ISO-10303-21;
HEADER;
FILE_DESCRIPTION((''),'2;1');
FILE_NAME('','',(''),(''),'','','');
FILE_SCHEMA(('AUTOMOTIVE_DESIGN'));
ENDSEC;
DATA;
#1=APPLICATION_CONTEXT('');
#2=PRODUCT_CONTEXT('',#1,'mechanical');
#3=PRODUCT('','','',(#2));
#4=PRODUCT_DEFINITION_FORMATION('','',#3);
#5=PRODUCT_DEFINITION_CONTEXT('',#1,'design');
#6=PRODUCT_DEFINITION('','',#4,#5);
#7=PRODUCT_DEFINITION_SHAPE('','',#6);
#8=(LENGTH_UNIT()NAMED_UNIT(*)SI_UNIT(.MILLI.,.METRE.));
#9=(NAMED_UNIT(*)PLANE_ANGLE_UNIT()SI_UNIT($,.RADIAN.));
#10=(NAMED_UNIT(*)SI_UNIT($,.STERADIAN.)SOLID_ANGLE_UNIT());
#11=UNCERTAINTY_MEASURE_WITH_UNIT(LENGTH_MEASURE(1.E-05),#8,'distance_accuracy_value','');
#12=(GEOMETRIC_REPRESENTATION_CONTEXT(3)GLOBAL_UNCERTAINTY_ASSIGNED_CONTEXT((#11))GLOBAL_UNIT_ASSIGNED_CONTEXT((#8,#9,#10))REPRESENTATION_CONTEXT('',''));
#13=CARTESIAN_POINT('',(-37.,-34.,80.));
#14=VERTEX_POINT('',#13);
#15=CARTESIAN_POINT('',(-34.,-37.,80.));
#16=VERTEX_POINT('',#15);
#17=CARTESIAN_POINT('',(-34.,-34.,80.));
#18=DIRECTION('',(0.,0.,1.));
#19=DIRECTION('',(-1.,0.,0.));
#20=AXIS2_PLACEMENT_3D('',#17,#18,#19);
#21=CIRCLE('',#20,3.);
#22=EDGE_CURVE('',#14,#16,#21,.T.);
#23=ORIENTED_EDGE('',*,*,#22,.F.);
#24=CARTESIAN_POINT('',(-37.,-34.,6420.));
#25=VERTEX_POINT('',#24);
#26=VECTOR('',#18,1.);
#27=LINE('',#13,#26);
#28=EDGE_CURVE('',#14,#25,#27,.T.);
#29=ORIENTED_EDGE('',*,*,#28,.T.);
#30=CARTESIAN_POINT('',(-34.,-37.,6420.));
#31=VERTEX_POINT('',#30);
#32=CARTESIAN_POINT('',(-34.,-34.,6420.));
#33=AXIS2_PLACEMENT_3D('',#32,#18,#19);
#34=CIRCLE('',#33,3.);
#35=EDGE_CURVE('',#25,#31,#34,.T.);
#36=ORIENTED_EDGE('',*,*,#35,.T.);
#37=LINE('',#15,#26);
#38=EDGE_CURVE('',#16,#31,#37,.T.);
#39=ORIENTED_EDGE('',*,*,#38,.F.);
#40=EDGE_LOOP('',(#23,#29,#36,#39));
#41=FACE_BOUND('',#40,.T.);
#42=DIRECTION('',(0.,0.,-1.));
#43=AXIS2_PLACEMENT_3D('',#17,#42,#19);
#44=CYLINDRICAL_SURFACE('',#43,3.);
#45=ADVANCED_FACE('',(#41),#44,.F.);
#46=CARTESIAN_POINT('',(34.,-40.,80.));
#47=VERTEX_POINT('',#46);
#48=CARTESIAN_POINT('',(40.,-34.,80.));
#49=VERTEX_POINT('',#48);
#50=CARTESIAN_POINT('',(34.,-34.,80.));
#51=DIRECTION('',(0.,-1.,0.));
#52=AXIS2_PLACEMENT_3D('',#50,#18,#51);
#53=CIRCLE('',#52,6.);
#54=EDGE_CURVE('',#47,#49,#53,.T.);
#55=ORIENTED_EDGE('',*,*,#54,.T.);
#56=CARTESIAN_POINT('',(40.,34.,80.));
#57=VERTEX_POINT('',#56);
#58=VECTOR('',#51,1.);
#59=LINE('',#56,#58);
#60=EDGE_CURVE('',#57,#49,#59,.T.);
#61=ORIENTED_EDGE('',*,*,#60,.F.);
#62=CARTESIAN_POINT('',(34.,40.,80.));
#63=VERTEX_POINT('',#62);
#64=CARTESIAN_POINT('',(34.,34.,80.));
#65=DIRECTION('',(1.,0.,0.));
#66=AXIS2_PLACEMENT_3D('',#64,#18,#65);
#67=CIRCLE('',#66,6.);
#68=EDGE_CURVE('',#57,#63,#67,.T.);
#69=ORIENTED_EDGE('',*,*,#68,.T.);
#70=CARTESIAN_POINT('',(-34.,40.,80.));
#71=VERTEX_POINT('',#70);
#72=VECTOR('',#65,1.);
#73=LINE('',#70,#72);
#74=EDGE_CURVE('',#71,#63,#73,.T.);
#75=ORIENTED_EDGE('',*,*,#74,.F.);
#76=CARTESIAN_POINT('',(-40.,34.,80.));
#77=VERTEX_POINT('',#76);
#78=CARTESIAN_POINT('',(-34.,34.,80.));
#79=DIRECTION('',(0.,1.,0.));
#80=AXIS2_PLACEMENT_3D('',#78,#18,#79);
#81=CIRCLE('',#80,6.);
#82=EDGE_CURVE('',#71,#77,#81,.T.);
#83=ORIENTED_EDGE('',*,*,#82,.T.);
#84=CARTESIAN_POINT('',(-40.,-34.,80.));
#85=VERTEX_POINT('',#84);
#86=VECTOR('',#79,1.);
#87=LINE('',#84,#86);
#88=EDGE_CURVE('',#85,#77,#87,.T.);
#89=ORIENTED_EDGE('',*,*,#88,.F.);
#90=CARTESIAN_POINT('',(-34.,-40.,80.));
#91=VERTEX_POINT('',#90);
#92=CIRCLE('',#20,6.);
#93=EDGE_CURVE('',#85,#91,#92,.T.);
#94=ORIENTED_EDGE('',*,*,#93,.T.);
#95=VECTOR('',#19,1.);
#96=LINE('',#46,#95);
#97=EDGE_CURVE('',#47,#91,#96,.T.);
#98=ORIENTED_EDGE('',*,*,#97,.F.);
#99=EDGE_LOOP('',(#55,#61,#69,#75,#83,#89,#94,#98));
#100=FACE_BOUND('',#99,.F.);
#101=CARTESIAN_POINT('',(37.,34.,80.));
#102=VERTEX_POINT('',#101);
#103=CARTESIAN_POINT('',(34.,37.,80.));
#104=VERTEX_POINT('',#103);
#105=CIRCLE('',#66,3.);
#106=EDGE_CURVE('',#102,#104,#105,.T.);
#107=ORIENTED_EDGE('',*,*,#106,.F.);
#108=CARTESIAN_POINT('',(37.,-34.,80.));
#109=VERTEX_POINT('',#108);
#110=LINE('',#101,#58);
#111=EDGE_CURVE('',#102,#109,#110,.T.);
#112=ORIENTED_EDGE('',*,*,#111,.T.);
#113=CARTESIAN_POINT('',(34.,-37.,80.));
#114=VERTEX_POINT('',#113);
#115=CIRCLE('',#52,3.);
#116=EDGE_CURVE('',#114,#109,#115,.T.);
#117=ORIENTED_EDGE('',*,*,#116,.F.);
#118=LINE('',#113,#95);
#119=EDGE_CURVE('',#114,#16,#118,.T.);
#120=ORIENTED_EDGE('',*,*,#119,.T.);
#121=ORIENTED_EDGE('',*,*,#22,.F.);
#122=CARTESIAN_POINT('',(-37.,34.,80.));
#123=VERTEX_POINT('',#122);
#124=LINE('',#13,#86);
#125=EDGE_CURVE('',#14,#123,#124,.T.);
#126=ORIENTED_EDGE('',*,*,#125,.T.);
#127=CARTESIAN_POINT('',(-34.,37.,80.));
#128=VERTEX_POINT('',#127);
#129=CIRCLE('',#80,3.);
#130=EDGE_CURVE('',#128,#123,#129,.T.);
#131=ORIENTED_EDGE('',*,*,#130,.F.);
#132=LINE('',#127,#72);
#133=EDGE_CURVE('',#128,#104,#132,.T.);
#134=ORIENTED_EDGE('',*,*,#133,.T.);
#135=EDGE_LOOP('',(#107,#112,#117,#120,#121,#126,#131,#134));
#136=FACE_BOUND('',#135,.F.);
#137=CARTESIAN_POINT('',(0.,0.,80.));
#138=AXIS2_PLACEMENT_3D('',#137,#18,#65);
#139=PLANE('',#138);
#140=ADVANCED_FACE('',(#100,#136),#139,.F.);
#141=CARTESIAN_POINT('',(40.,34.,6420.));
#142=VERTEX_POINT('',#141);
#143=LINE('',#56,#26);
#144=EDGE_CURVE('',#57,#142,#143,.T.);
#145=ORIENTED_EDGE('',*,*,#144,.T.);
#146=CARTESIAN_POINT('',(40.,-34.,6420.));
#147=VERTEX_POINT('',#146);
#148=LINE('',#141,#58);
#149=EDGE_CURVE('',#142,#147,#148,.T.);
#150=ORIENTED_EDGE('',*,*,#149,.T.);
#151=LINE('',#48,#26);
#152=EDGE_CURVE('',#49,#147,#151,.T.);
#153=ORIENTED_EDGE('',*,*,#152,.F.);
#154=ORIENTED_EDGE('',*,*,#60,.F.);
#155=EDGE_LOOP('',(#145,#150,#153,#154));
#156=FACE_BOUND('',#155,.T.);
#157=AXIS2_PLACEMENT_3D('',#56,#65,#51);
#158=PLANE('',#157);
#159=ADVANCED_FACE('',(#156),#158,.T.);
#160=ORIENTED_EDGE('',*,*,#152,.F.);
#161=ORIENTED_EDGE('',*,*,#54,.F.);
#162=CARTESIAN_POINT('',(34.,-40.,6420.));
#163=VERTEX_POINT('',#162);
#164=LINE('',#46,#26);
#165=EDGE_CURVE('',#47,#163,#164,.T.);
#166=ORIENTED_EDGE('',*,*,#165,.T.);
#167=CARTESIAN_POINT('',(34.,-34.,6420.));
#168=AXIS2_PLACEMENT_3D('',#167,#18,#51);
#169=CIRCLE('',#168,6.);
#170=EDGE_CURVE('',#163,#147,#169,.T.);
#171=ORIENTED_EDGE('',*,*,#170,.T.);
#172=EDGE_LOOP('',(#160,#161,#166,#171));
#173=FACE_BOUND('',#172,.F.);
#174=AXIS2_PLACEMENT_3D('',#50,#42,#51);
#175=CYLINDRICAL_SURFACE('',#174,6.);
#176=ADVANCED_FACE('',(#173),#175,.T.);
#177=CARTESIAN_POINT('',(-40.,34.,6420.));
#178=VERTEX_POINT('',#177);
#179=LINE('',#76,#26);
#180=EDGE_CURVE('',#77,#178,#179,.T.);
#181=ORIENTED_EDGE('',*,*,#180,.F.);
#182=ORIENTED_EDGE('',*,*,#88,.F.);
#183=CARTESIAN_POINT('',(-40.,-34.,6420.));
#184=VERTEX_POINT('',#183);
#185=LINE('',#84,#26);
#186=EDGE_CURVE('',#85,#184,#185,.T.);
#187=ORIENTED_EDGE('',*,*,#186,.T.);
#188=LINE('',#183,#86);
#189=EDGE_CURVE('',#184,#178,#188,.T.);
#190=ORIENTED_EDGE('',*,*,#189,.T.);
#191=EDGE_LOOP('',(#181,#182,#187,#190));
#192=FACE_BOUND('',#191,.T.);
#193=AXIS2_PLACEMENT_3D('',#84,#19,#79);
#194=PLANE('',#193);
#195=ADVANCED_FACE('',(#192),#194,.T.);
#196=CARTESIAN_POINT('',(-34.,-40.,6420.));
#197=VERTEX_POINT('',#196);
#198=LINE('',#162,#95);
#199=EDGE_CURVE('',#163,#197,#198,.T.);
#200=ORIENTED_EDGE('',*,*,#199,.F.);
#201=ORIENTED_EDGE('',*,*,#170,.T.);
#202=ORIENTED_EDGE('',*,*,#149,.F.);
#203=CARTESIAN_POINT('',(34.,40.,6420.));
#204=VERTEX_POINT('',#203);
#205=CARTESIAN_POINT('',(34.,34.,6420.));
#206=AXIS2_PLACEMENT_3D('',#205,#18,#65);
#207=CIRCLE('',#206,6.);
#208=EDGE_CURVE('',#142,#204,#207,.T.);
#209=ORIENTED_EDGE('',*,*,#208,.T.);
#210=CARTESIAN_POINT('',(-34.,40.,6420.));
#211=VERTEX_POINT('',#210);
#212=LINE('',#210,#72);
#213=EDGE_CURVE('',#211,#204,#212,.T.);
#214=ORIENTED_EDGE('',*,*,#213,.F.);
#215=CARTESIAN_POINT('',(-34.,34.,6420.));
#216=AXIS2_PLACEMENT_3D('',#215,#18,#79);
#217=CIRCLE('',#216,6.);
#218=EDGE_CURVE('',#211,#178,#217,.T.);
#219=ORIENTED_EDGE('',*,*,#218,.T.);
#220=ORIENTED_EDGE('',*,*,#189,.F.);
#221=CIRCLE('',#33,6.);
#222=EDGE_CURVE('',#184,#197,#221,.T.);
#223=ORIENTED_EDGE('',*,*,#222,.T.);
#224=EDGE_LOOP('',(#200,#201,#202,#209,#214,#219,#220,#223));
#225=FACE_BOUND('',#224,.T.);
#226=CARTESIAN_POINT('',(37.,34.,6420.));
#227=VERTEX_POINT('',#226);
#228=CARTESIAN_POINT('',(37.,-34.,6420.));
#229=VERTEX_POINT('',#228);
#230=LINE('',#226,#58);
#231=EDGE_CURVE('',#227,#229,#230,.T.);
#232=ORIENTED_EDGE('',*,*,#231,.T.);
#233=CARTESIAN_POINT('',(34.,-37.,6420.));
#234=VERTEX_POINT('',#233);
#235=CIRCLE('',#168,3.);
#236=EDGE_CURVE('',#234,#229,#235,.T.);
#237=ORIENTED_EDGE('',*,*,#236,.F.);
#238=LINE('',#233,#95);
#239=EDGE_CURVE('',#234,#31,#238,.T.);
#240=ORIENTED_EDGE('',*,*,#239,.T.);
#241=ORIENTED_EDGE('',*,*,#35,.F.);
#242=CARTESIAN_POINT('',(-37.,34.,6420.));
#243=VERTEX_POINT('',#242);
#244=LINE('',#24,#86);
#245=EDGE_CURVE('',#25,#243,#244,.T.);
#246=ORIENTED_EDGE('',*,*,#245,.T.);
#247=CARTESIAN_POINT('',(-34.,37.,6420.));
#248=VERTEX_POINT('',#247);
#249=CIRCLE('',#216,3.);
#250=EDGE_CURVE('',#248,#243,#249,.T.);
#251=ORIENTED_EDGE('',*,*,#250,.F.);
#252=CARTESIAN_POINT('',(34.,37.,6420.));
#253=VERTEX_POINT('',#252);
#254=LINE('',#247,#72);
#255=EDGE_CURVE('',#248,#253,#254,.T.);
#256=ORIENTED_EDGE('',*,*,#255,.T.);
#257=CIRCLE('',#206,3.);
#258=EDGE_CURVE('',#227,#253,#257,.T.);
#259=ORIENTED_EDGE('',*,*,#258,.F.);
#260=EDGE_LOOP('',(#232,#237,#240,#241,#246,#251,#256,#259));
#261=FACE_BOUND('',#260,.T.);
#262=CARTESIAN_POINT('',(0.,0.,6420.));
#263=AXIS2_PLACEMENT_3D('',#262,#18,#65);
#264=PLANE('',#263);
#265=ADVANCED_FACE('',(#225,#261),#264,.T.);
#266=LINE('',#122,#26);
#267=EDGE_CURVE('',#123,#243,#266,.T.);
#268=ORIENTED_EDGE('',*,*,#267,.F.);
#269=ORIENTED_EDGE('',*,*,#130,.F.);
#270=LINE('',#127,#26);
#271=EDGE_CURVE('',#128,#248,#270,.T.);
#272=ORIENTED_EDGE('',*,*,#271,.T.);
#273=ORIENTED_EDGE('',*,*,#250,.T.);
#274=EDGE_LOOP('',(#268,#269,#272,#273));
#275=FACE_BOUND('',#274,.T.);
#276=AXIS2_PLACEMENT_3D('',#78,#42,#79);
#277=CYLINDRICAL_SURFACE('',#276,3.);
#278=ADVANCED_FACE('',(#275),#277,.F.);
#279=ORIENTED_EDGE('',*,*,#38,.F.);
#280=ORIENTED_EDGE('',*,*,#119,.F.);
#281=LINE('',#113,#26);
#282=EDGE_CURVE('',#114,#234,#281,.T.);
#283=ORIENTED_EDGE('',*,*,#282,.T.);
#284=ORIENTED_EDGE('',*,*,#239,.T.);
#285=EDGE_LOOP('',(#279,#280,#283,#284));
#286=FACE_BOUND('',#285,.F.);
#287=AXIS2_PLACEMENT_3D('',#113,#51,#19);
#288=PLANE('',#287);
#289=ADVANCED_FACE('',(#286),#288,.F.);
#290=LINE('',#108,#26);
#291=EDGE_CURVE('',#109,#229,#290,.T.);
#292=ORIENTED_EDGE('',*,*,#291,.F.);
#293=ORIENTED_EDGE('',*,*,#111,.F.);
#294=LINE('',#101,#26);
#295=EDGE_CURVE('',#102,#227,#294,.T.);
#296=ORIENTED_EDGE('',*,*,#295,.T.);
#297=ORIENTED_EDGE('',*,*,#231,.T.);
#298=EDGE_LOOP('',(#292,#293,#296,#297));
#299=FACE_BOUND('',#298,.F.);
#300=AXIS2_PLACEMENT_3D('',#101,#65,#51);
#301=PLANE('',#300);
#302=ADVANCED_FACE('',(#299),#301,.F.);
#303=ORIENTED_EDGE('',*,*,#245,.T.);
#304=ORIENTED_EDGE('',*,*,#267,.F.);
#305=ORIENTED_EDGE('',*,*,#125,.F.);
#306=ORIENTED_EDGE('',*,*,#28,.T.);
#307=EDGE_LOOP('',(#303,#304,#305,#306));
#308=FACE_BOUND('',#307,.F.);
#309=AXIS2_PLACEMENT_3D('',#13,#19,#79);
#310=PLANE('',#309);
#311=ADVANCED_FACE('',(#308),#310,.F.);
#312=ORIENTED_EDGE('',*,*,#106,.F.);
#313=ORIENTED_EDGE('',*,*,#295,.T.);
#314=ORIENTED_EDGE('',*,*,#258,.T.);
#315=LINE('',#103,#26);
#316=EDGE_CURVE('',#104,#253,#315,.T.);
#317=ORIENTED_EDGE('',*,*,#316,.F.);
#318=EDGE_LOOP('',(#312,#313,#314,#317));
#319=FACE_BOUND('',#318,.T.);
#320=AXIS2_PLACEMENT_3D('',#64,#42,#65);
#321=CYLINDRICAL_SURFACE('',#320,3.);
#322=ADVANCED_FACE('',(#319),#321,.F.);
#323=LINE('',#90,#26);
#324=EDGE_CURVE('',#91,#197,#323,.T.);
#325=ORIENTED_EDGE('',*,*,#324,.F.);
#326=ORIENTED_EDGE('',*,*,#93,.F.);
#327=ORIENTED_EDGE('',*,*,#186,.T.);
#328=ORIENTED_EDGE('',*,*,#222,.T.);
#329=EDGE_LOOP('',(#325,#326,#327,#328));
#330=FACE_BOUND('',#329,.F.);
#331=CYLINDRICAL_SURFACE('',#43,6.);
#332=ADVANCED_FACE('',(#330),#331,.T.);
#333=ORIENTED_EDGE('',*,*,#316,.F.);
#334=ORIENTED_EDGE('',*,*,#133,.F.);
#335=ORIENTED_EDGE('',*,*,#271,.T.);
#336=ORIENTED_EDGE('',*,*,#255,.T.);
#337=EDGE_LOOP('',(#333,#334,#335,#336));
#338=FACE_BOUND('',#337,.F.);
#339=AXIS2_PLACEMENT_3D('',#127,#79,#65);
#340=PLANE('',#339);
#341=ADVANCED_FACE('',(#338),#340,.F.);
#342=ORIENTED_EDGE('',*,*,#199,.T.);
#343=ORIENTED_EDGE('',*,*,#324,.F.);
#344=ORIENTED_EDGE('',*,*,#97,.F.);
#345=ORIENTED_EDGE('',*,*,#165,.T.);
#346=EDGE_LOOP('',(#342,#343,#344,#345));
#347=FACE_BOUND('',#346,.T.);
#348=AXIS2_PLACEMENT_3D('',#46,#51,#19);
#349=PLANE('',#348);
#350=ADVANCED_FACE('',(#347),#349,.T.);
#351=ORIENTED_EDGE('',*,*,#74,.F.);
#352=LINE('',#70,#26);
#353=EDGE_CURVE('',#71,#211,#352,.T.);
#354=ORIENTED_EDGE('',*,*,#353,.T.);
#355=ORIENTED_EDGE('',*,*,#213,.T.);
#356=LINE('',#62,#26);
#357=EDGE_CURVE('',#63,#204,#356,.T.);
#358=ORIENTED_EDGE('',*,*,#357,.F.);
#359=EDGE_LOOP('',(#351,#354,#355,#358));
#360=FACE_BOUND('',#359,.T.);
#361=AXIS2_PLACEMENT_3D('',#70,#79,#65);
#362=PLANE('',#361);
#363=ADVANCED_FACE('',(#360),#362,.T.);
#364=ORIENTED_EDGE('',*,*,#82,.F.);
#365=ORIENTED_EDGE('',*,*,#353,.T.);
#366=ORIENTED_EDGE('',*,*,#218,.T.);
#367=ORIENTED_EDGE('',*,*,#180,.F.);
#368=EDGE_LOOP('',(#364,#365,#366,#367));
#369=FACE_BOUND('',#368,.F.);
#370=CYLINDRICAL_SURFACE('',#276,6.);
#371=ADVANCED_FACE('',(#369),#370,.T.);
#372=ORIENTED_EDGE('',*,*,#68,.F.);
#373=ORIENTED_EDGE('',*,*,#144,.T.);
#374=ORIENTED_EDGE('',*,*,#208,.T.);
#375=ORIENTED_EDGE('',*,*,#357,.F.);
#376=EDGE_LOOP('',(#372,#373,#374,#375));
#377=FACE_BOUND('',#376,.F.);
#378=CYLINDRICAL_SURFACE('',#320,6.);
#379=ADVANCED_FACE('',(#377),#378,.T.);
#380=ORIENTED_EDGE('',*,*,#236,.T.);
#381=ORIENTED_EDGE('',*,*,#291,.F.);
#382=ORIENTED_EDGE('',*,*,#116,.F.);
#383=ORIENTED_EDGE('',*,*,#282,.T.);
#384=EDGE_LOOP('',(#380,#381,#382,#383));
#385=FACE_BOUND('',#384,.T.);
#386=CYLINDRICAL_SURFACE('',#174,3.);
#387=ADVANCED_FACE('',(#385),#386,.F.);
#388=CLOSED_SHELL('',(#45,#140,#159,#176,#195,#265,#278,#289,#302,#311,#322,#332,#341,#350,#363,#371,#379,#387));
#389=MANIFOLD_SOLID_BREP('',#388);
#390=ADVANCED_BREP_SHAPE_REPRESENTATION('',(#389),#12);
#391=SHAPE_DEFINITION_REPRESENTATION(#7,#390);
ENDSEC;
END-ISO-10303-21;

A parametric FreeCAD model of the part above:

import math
import FreeCAD as App
import Part
import Sketcher

doc = App.newDocument("Part")
body = doc.addObject("PartDesign::Body", "Body")

# Sketch on XY plane
sketch1 = body.newObject("Sketcher::SketchObject", "Sketch")
sketch1.AttachmentSupport = (doc.getObject("XY_Plane"), [""])
sketch1.MapMode = "FlatFace"
sketch1.AttachmentOffset = App.Placement(App.Vector(0, 0, 80), App.Rotation())
sketch1.addGeometry(Part.LineSegment(App.Vector(-40, 34, 0), App.Vector(-40, -34, 0)), False)
sketch1.addGeometry(Part.ArcOfCircle(Part.Circle(App.Vector(-34, -34, 0), App.Vector(0, 0, 1), 6), math.radians(180), math.radians(270)), False)
sketch1.addGeometry(Part.LineSegment(App.Vector(-34, -40, 0), App.Vector(34, -40, 0)), False)
sketch1.addGeometry(Part.ArcOfCircle(Part.Circle(App.Vector(34, -34, 0), App.Vector(0, 0, 1), 6), math.radians(-90), math.radians(0)), False)
sketch1.addGeometry(Part.LineSegment(App.Vector(40, -34, 0), App.Vector(40, 34, 0)), False)
sketch1.addGeometry(Part.ArcOfCircle(Part.Circle(App.Vector(34, 34, 0), App.Vector(0, 0, 1), 6), math.radians(0), math.radians(90)), False)
sketch1.addGeometry(Part.LineSegment(App.Vector(34, 40, 0), App.Vector(-34, 40, 0)), False)
sketch1.addGeometry(Part.ArcOfCircle(Part.Circle(App.Vector(-34, 34, 0), App.Vector(0, 0, 1), 6), math.radians(90), math.radians(180)), False)
sketch1.addGeometry(Part.ArcOfCircle(Part.Circle(App.Vector(-34, 34, 0), App.Vector(0, 0, 1), 3), math.radians(90), math.radians(180)), False)
sketch1.addGeometry(Part.LineSegment(App.Vector(-34, 37, 0), App.Vector(34, 37, 0)), False)
sketch1.addGeometry(Part.ArcOfCircle(Part.Circle(App.Vector(34, 34, 0), App.Vector(0, 0, 1), 3), math.radians(0), math.radians(90)), False)
sketch1.addGeometry(Part.LineSegment(App.Vector(37, 34, 0), App.Vector(37, -34, 0)), False)
sketch1.addGeometry(Part.ArcOfCircle(Part.Circle(App.Vector(34, -34, 0), App.Vector(0, 0, 1), 3), math.radians(-90), math.radians(0)), False)
sketch1.addGeometry(Part.LineSegment(App.Vector(34, -37, 0), App.Vector(-34, -37, 0)), False)
sketch1.addGeometry(Part.ArcOfCircle(Part.Circle(App.Vector(-34, -34, 0), App.Vector(0, 0, 1), 3), math.radians(180), math.radians(270)), False)
sketch1.addGeometry(Part.LineSegment(App.Vector(-37, -34, 0), App.Vector(-37, 34, 0)), False)
sketch1.addConstraint(Sketcher.Constraint("Tangent", 0, 2, 1, 1))
sketch1.addConstraint(Sketcher.Constraint("Tangent", 1, 2, 2, 1))
sketch1.addConstraint(Sketcher.Constraint("Tangent", 2, 2, 3, 1))
sketch1.addConstraint(Sketcher.Constraint("Tangent", 3, 2, 4, 1))
sketch1.addConstraint(Sketcher.Constraint("Tangent", 4, 2, 5, 1))
sketch1.addConstraint(Sketcher.Constraint("Tangent", 5, 2, 6, 1))
sketch1.addConstraint(Sketcher.Constraint("Tangent", 6, 2, 7, 1))
sketch1.addConstraint(Sketcher.Constraint("Tangent", 7, 2, 0, 1))
sketch1.addConstraint(Sketcher.Constraint("Tangent", 8, 1, 9, 1))
sketch1.addConstraint(Sketcher.Constraint("Tangent", 9, 2, 10, 2))
sketch1.addConstraint(Sketcher.Constraint("Tangent", 10, 1, 11, 1))
sketch1.addConstraint(Sketcher.Constraint("Tangent", 11, 2, 12, 2))
sketch1.addConstraint(Sketcher.Constraint("Tangent", 12, 1, 13, 1))
sketch1.addConstraint(Sketcher.Constraint("Tangent", 13, 2, 14, 2))
sketch1.addConstraint(Sketcher.Constraint("Tangent", 14, 1, 15, 1))
sketch1.addConstraint(Sketcher.Constraint("Tangent", 15, 2, 8, 2))
sketch1.addConstraint(Sketcher.Constraint("Vertical", 0))
sketch1.addConstraint(Sketcher.Constraint("Horizontal", 2))
sketch1.addConstraint(Sketcher.Constraint("Vertical", 4))
sketch1.addConstraint(Sketcher.Constraint("Horizontal", 6))
sketch1.addConstraint(Sketcher.Constraint("Horizontal", 9))
sketch1.addConstraint(Sketcher.Constraint("Vertical", 11))
sketch1.addConstraint(Sketcher.Constraint("Horizontal", 13))
sketch1.addConstraint(Sketcher.Constraint("Vertical", 15))
sketch1.addConstraint(Sketcher.Constraint("Coincident", 8, 3, 7, 3))
sketch1.addConstraint(Sketcher.Constraint("Coincident", 10, 3, 5, 3))
sketch1.addConstraint(Sketcher.Constraint("Coincident", 12, 3, 3, 3))
sketch1.addConstraint(Sketcher.Constraint("Equal", 1, 3))
sketch1.addConstraint(Sketcher.Constraint("Equal", 3, 5))
sketch1.addConstraint(Sketcher.Constraint("Equal", 5, 7))
sketch1.addConstraint(Sketcher.Constraint("Equal", 12, 14))
sketch1.addConstraint(Sketcher.Constraint("Symmetric", 1, 3, 5, 3, -1, 1))
sketch1.addConstraint(Sketcher.Constraint("Equal", 13, 0))
sketch1.addConstraint(Sketcher.Constraint("Radius", 1, 6.0))
sketch1.addConstraint(Sketcher.Constraint("Radius", 8, 3.0))
sketch1.addConstraint(Sketcher.Constraint("DistanceX", 0, 2, -1, 1, 40.0))
pad1 = body.newObject("PartDesign::Pad", "Pad")
pad1.Profile = sketch1
pad1.Length = 6340

doc.recompute()
